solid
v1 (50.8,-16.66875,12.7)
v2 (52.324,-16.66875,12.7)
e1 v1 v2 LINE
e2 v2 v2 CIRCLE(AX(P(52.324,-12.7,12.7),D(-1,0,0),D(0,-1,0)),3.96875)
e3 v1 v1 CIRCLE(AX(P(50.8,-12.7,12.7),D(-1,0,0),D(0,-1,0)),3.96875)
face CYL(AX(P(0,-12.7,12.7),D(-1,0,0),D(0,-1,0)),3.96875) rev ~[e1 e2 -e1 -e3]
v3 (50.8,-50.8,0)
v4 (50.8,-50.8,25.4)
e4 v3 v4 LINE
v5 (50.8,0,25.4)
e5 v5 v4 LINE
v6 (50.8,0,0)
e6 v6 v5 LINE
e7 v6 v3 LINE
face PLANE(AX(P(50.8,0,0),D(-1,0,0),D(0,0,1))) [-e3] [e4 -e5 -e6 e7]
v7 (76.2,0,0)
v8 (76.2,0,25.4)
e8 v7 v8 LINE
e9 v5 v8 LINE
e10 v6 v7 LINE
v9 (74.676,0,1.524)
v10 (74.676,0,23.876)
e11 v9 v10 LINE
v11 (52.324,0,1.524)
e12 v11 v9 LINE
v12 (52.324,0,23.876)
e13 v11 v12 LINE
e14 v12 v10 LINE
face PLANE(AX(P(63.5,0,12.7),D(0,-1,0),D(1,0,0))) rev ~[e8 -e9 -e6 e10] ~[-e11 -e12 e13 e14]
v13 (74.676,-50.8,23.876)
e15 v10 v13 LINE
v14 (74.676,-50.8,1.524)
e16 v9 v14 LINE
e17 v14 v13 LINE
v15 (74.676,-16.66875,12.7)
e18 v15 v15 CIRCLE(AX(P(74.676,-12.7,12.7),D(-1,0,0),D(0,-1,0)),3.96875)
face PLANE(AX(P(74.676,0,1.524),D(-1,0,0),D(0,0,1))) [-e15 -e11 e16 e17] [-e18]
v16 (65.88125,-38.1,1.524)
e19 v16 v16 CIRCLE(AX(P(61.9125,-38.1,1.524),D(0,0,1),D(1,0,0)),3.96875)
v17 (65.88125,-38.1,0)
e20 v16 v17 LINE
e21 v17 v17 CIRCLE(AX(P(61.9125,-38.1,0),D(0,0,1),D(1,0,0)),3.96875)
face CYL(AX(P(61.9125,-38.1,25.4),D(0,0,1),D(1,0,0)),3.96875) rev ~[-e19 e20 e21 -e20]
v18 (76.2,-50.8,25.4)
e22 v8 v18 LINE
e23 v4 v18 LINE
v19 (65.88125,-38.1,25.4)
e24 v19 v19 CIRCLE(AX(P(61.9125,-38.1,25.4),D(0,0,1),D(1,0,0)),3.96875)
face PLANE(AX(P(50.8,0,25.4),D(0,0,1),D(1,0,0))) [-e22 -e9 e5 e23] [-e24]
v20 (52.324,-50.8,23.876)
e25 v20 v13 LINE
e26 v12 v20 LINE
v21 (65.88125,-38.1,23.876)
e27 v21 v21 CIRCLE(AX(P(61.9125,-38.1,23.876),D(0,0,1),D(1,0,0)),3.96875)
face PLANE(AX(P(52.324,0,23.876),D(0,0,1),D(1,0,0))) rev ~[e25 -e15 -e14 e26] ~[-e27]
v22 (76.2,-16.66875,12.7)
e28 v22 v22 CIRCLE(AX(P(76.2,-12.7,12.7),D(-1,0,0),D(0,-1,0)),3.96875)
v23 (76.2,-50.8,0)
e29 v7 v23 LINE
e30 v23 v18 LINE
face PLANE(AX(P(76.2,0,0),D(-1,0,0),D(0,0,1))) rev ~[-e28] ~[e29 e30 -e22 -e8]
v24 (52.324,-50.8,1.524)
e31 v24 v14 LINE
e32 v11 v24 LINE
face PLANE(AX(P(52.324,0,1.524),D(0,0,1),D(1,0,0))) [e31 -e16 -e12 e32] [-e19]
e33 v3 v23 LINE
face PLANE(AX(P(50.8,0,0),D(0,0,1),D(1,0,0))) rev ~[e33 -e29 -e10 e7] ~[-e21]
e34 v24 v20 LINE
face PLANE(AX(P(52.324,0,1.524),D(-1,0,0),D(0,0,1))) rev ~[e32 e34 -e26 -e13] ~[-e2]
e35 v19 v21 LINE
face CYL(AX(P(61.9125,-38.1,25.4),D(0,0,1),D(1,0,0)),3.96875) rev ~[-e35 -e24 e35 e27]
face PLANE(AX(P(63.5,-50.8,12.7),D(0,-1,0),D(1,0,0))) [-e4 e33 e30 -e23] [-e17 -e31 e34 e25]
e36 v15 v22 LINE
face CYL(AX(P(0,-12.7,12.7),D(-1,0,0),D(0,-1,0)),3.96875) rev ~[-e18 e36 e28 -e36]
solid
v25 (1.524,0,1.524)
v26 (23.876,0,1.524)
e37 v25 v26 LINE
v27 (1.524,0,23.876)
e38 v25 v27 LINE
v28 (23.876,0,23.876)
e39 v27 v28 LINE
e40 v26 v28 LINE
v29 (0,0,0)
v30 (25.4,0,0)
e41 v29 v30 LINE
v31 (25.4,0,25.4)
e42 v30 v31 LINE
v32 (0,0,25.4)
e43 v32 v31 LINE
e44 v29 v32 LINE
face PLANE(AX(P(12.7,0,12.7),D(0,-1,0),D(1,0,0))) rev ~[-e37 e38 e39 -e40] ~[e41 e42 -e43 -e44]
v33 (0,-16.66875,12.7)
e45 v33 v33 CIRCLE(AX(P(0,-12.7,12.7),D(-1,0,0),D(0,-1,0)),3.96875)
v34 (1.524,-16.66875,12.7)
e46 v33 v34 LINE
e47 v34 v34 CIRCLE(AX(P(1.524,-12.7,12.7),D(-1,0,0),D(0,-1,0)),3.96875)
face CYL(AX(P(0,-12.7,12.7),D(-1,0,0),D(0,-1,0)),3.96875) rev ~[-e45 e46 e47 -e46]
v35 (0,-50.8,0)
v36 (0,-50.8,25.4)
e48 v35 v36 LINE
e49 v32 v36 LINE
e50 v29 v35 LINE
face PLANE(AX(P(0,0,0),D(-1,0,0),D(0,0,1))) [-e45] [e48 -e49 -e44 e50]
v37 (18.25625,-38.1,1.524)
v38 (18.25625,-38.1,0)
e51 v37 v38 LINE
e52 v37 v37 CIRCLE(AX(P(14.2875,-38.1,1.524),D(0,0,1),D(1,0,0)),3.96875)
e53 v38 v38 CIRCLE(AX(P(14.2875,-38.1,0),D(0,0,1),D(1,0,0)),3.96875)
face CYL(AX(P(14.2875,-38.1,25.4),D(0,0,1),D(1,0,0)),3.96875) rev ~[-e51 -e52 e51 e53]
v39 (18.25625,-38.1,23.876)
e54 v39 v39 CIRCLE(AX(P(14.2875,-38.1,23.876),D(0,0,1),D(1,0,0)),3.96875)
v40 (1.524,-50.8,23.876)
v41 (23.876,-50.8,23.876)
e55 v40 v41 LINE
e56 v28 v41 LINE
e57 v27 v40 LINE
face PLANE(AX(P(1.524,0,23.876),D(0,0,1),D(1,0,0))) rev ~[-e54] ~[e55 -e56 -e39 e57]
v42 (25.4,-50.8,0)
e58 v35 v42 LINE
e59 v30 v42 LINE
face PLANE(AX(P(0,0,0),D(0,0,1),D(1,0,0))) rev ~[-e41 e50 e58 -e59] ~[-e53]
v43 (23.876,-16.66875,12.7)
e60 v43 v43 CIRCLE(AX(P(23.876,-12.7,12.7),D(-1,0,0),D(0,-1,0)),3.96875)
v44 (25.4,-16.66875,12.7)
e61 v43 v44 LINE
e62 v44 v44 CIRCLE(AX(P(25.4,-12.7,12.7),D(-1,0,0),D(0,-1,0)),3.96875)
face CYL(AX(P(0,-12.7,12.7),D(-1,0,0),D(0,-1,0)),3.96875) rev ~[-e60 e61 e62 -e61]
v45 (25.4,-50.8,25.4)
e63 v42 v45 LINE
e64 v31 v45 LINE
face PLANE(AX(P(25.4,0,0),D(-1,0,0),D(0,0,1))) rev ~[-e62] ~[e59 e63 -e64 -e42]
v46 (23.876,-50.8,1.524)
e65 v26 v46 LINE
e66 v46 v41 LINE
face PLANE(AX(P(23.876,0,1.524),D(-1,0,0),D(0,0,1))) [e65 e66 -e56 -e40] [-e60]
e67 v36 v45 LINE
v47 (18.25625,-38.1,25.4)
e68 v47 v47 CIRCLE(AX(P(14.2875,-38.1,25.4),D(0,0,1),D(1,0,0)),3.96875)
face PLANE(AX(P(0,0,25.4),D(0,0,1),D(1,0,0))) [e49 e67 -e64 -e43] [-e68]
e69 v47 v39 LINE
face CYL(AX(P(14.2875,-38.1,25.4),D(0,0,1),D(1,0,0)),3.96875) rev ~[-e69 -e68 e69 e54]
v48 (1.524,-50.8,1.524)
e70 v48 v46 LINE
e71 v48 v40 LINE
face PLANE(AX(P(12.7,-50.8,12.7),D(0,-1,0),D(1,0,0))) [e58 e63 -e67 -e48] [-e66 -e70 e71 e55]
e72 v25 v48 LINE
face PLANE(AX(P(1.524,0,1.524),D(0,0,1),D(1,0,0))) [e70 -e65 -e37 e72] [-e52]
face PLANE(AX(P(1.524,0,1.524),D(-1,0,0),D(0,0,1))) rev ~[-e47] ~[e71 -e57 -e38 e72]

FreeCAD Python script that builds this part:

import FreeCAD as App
import Part
import Sketcher

V = App.Vector
Q = App.Units.Quantity

doc = App.newDocument("Part")
body = doc.addObject("PartDesign::Body", "Body")
body.AllowCompound = True

sketch1 = body.newObject("Sketcher::SketchObject", "Sketch")
sketch1.AttachmentSupport = (doc.getObject("XZ_Plane"), [""])
sketch1.MapMode = "FlatFace"
sketch1.addGeometry([
    Part.LineSegment(V(0, 25, 0), V(0, 0, 0)),
    Part.LineSegment(V(0, 0, 0), V(25, 0, 0)),
    Part.LineSegment(V(25, 0, 0), V(25, 25, 0)),
    Part.LineSegment(V(25, 25, 0), V(0, 25, 0)),
    Part.LineSegment(V(24, 2, 0), V(2, 2, 0)),
    Part.LineSegment(V(2, 2, 0), V(2, 24, 0)),
    Part.LineSegment(V(2, 24, 0), V(24, 24, 0)),
    Part.LineSegment(V(24, 24, 0), V(24, 2, 0)),
    Part.LineSegment(V(51, 25, 0), V(51, 0, 0)),
    Part.LineSegment(V(51, 0, 0), V(76, 0, 0)),
    Part.LineSegment(V(76, 0, 0), V(76, 25, 0)),
    Part.LineSegment(V(76, 25, 0), V(51, 25, 0)),
    Part.LineSegment(V(75, 2, 0), V(52, 2, 0)),
    Part.LineSegment(V(52, 2, 0), V(52, 24, 0)),
    Part.LineSegment(V(52, 24, 0), V(75, 24, 0)),
    Part.LineSegment(V(75, 24, 0), V(75, 2, 0)),
], False)
sketch1.addConstraint([
    Sketcher.Constraint("Coincident", 0, 2, 1, 1),
    Sketcher.Constraint("Coincident", 1, 2, 2, 1),
    Sketcher.Constraint("Coincident", 2, 2, 3, 1),
    Sketcher.Constraint("Coincident", 3, 2, 0, 1),
    Sketcher.Constraint("Coincident", 4, 2, 5, 1),
    Sketcher.Constraint("Coincident", 5, 2, 6, 1),
    Sketcher.Constraint("Coincident", 6, 2, 7, 1),
    Sketcher.Constraint("Coincident", 7, 2, 4, 1),
    Sketcher.Constraint("Coincident", 8, 2, 9, 1),
    Sketcher.Constraint("Coincident", 9, 2, 10, 1),
    Sketcher.Constraint("Coincident", 10, 2, 11, 1),
    Sketcher.Constraint("Coincident", 11, 2, 8, 1),
    Sketcher.Constraint("Coincident", 12, 2, 13, 1),
    Sketcher.Constraint("Coincident", 13, 2, 14, 1),
    Sketcher.Constraint("Coincident", 14, 2, 15, 1),
    Sketcher.Constraint("Coincident", 15, 2, 12, 1),
    Sketcher.Constraint("Vertical", 0),
    Sketcher.Constraint("Horizontal", 1),
    Sketcher.Constraint("Vertical", 2),
    Sketcher.Constraint("Horizontal", 3),
    Sketcher.Constraint("Horizontal", 4),
    Sketcher.Constraint("Vertical", 5),
    Sketcher.Constraint("Horizontal", 6),
    Sketcher.Constraint("Vertical", 7),
    Sketcher.Constraint("Vertical", 8),
    Sketcher.Constraint("Horizontal", 9),
    Sketcher.Constraint("Vertical", 10),
    Sketcher.Constraint("Horizontal", 11),
    Sketcher.Constraint("Horizontal", 12),
    Sketcher.Constraint("Vertical", 13),
    Sketcher.Constraint("Horizontal", 14),
    Sketcher.Constraint("Vertical", 15),
    Sketcher.Constraint("Coincident", 0, 2, -1, 1),
    Sketcher.Constraint("PointOnObject", 8, 2, -1),
    Sketcher.Constraint("Horizontal", 3, 2, 10, 2),
    Sketcher.Constraint("Horizontal", 7, 2, 12, 2),
    Sketcher.Constraint("Horizontal", 6, 2, 13, 2),
    Sketcher.Constraint("Equal", 3, 9),
    Sketcher.Constraint("Equal", 6, 12),
    Sketcher.Constraint("Equal", 11, 0),
    Sketcher.Constraint("Equal", 14, 5),
    Sketcher.Constraint("DistanceX", 1, 1, 1, 2, Q("1 in")),
    Sketcher.Constraint("DistanceX", -1, 1, 8, 2, Q("2 in")),
    Sketcher.Constraint("DistanceX", 4, 2, 4, 1, Q("0.88 in")),
    Sketcher.Constraint("DistanceX", -1, 1, 4, 2, Q("0.06 in")),
    Sketcher.Constraint("DistanceY", -1, 1, 4, 2, Q("0.06 in")),
    Sketcher.Constraint("DistanceX", -1, 1, 12, 2, Q("2.06 in")),
])
pad1 = body.newObject("PartDesign::Pad", "Pad")
pad1.Profile = sketch1
pad1.Length = Q("2 in")

sketch2 = body.newObject("Sketcher::SketchObject", "Sketch001")
sketch2.AttachmentSupport = (doc.getObject("XY_Plane"), [""])
sketch2.MapMode = "FlatFace"
sketch2.AttachmentOffset = App.Placement(V(0, 0, 1 * 25.4), App.Rotation())
sketch2.addGeometry([
    Part.Circle(V(14.3, -38.1, 0), V(0, 0, 1), 4),
    Part.Circle(V(61.9, -38.1, 0), V(0, 0, 1), 4),
], False)
sketch2.addConstraint([
    Sketcher.Constraint("Equal", 0, 1),
    Sketcher.Constraint("Horizontal", 0, 3, 1, 3),
    Sketcher.Constraint("Diameter", 0, Q("0.3125 in")),
    Sketcher.Constraint("DistanceY", 0, 3, -1, 1, Q("1.5 in")),
    Sketcher.Constraint("DistanceX", -1, 1, 0, 3, Q("0.5625 in")),
    Sketcher.Constraint("DistanceX", -1, 1, 1, 3, Q("2.4375 in")),
])
pocket1 = body.newObject("PartDesign::Pocket", "Pocket")
pocket1.Profile = sketch2
pocket1.Type = "ThroughAll"

sketch3 = body.newObject("Sketcher::SketchObject", "Sketch002")
sketch3.AttachmentSupport = (doc.getObject("YZ_Plane"), [""])
sketch3.MapMode = "FlatFace"
sketch3.addGeometry(Part.Circle(V(-12.7, 12.7, 0), V(0, 0, 1), 4), False)
sketch3.addConstraint([
    Sketcher.Constraint("Diameter", 0, Q("0.3125 in")),
    Sketcher.Constraint("DistanceX", 0, 3, -1, 1, Q("0.5 in")),
    Sketcher.Constraint("DistanceY", -1, 1, 0, 3, Q("0.5 in")),
])
pocket2 = body.newObject("PartDesign::Pocket", "Pocket001")
pocket2.Profile = sketch3
pocket2.Type = "ThroughAll"
pocket2.Reversed = True

doc.recompute()
